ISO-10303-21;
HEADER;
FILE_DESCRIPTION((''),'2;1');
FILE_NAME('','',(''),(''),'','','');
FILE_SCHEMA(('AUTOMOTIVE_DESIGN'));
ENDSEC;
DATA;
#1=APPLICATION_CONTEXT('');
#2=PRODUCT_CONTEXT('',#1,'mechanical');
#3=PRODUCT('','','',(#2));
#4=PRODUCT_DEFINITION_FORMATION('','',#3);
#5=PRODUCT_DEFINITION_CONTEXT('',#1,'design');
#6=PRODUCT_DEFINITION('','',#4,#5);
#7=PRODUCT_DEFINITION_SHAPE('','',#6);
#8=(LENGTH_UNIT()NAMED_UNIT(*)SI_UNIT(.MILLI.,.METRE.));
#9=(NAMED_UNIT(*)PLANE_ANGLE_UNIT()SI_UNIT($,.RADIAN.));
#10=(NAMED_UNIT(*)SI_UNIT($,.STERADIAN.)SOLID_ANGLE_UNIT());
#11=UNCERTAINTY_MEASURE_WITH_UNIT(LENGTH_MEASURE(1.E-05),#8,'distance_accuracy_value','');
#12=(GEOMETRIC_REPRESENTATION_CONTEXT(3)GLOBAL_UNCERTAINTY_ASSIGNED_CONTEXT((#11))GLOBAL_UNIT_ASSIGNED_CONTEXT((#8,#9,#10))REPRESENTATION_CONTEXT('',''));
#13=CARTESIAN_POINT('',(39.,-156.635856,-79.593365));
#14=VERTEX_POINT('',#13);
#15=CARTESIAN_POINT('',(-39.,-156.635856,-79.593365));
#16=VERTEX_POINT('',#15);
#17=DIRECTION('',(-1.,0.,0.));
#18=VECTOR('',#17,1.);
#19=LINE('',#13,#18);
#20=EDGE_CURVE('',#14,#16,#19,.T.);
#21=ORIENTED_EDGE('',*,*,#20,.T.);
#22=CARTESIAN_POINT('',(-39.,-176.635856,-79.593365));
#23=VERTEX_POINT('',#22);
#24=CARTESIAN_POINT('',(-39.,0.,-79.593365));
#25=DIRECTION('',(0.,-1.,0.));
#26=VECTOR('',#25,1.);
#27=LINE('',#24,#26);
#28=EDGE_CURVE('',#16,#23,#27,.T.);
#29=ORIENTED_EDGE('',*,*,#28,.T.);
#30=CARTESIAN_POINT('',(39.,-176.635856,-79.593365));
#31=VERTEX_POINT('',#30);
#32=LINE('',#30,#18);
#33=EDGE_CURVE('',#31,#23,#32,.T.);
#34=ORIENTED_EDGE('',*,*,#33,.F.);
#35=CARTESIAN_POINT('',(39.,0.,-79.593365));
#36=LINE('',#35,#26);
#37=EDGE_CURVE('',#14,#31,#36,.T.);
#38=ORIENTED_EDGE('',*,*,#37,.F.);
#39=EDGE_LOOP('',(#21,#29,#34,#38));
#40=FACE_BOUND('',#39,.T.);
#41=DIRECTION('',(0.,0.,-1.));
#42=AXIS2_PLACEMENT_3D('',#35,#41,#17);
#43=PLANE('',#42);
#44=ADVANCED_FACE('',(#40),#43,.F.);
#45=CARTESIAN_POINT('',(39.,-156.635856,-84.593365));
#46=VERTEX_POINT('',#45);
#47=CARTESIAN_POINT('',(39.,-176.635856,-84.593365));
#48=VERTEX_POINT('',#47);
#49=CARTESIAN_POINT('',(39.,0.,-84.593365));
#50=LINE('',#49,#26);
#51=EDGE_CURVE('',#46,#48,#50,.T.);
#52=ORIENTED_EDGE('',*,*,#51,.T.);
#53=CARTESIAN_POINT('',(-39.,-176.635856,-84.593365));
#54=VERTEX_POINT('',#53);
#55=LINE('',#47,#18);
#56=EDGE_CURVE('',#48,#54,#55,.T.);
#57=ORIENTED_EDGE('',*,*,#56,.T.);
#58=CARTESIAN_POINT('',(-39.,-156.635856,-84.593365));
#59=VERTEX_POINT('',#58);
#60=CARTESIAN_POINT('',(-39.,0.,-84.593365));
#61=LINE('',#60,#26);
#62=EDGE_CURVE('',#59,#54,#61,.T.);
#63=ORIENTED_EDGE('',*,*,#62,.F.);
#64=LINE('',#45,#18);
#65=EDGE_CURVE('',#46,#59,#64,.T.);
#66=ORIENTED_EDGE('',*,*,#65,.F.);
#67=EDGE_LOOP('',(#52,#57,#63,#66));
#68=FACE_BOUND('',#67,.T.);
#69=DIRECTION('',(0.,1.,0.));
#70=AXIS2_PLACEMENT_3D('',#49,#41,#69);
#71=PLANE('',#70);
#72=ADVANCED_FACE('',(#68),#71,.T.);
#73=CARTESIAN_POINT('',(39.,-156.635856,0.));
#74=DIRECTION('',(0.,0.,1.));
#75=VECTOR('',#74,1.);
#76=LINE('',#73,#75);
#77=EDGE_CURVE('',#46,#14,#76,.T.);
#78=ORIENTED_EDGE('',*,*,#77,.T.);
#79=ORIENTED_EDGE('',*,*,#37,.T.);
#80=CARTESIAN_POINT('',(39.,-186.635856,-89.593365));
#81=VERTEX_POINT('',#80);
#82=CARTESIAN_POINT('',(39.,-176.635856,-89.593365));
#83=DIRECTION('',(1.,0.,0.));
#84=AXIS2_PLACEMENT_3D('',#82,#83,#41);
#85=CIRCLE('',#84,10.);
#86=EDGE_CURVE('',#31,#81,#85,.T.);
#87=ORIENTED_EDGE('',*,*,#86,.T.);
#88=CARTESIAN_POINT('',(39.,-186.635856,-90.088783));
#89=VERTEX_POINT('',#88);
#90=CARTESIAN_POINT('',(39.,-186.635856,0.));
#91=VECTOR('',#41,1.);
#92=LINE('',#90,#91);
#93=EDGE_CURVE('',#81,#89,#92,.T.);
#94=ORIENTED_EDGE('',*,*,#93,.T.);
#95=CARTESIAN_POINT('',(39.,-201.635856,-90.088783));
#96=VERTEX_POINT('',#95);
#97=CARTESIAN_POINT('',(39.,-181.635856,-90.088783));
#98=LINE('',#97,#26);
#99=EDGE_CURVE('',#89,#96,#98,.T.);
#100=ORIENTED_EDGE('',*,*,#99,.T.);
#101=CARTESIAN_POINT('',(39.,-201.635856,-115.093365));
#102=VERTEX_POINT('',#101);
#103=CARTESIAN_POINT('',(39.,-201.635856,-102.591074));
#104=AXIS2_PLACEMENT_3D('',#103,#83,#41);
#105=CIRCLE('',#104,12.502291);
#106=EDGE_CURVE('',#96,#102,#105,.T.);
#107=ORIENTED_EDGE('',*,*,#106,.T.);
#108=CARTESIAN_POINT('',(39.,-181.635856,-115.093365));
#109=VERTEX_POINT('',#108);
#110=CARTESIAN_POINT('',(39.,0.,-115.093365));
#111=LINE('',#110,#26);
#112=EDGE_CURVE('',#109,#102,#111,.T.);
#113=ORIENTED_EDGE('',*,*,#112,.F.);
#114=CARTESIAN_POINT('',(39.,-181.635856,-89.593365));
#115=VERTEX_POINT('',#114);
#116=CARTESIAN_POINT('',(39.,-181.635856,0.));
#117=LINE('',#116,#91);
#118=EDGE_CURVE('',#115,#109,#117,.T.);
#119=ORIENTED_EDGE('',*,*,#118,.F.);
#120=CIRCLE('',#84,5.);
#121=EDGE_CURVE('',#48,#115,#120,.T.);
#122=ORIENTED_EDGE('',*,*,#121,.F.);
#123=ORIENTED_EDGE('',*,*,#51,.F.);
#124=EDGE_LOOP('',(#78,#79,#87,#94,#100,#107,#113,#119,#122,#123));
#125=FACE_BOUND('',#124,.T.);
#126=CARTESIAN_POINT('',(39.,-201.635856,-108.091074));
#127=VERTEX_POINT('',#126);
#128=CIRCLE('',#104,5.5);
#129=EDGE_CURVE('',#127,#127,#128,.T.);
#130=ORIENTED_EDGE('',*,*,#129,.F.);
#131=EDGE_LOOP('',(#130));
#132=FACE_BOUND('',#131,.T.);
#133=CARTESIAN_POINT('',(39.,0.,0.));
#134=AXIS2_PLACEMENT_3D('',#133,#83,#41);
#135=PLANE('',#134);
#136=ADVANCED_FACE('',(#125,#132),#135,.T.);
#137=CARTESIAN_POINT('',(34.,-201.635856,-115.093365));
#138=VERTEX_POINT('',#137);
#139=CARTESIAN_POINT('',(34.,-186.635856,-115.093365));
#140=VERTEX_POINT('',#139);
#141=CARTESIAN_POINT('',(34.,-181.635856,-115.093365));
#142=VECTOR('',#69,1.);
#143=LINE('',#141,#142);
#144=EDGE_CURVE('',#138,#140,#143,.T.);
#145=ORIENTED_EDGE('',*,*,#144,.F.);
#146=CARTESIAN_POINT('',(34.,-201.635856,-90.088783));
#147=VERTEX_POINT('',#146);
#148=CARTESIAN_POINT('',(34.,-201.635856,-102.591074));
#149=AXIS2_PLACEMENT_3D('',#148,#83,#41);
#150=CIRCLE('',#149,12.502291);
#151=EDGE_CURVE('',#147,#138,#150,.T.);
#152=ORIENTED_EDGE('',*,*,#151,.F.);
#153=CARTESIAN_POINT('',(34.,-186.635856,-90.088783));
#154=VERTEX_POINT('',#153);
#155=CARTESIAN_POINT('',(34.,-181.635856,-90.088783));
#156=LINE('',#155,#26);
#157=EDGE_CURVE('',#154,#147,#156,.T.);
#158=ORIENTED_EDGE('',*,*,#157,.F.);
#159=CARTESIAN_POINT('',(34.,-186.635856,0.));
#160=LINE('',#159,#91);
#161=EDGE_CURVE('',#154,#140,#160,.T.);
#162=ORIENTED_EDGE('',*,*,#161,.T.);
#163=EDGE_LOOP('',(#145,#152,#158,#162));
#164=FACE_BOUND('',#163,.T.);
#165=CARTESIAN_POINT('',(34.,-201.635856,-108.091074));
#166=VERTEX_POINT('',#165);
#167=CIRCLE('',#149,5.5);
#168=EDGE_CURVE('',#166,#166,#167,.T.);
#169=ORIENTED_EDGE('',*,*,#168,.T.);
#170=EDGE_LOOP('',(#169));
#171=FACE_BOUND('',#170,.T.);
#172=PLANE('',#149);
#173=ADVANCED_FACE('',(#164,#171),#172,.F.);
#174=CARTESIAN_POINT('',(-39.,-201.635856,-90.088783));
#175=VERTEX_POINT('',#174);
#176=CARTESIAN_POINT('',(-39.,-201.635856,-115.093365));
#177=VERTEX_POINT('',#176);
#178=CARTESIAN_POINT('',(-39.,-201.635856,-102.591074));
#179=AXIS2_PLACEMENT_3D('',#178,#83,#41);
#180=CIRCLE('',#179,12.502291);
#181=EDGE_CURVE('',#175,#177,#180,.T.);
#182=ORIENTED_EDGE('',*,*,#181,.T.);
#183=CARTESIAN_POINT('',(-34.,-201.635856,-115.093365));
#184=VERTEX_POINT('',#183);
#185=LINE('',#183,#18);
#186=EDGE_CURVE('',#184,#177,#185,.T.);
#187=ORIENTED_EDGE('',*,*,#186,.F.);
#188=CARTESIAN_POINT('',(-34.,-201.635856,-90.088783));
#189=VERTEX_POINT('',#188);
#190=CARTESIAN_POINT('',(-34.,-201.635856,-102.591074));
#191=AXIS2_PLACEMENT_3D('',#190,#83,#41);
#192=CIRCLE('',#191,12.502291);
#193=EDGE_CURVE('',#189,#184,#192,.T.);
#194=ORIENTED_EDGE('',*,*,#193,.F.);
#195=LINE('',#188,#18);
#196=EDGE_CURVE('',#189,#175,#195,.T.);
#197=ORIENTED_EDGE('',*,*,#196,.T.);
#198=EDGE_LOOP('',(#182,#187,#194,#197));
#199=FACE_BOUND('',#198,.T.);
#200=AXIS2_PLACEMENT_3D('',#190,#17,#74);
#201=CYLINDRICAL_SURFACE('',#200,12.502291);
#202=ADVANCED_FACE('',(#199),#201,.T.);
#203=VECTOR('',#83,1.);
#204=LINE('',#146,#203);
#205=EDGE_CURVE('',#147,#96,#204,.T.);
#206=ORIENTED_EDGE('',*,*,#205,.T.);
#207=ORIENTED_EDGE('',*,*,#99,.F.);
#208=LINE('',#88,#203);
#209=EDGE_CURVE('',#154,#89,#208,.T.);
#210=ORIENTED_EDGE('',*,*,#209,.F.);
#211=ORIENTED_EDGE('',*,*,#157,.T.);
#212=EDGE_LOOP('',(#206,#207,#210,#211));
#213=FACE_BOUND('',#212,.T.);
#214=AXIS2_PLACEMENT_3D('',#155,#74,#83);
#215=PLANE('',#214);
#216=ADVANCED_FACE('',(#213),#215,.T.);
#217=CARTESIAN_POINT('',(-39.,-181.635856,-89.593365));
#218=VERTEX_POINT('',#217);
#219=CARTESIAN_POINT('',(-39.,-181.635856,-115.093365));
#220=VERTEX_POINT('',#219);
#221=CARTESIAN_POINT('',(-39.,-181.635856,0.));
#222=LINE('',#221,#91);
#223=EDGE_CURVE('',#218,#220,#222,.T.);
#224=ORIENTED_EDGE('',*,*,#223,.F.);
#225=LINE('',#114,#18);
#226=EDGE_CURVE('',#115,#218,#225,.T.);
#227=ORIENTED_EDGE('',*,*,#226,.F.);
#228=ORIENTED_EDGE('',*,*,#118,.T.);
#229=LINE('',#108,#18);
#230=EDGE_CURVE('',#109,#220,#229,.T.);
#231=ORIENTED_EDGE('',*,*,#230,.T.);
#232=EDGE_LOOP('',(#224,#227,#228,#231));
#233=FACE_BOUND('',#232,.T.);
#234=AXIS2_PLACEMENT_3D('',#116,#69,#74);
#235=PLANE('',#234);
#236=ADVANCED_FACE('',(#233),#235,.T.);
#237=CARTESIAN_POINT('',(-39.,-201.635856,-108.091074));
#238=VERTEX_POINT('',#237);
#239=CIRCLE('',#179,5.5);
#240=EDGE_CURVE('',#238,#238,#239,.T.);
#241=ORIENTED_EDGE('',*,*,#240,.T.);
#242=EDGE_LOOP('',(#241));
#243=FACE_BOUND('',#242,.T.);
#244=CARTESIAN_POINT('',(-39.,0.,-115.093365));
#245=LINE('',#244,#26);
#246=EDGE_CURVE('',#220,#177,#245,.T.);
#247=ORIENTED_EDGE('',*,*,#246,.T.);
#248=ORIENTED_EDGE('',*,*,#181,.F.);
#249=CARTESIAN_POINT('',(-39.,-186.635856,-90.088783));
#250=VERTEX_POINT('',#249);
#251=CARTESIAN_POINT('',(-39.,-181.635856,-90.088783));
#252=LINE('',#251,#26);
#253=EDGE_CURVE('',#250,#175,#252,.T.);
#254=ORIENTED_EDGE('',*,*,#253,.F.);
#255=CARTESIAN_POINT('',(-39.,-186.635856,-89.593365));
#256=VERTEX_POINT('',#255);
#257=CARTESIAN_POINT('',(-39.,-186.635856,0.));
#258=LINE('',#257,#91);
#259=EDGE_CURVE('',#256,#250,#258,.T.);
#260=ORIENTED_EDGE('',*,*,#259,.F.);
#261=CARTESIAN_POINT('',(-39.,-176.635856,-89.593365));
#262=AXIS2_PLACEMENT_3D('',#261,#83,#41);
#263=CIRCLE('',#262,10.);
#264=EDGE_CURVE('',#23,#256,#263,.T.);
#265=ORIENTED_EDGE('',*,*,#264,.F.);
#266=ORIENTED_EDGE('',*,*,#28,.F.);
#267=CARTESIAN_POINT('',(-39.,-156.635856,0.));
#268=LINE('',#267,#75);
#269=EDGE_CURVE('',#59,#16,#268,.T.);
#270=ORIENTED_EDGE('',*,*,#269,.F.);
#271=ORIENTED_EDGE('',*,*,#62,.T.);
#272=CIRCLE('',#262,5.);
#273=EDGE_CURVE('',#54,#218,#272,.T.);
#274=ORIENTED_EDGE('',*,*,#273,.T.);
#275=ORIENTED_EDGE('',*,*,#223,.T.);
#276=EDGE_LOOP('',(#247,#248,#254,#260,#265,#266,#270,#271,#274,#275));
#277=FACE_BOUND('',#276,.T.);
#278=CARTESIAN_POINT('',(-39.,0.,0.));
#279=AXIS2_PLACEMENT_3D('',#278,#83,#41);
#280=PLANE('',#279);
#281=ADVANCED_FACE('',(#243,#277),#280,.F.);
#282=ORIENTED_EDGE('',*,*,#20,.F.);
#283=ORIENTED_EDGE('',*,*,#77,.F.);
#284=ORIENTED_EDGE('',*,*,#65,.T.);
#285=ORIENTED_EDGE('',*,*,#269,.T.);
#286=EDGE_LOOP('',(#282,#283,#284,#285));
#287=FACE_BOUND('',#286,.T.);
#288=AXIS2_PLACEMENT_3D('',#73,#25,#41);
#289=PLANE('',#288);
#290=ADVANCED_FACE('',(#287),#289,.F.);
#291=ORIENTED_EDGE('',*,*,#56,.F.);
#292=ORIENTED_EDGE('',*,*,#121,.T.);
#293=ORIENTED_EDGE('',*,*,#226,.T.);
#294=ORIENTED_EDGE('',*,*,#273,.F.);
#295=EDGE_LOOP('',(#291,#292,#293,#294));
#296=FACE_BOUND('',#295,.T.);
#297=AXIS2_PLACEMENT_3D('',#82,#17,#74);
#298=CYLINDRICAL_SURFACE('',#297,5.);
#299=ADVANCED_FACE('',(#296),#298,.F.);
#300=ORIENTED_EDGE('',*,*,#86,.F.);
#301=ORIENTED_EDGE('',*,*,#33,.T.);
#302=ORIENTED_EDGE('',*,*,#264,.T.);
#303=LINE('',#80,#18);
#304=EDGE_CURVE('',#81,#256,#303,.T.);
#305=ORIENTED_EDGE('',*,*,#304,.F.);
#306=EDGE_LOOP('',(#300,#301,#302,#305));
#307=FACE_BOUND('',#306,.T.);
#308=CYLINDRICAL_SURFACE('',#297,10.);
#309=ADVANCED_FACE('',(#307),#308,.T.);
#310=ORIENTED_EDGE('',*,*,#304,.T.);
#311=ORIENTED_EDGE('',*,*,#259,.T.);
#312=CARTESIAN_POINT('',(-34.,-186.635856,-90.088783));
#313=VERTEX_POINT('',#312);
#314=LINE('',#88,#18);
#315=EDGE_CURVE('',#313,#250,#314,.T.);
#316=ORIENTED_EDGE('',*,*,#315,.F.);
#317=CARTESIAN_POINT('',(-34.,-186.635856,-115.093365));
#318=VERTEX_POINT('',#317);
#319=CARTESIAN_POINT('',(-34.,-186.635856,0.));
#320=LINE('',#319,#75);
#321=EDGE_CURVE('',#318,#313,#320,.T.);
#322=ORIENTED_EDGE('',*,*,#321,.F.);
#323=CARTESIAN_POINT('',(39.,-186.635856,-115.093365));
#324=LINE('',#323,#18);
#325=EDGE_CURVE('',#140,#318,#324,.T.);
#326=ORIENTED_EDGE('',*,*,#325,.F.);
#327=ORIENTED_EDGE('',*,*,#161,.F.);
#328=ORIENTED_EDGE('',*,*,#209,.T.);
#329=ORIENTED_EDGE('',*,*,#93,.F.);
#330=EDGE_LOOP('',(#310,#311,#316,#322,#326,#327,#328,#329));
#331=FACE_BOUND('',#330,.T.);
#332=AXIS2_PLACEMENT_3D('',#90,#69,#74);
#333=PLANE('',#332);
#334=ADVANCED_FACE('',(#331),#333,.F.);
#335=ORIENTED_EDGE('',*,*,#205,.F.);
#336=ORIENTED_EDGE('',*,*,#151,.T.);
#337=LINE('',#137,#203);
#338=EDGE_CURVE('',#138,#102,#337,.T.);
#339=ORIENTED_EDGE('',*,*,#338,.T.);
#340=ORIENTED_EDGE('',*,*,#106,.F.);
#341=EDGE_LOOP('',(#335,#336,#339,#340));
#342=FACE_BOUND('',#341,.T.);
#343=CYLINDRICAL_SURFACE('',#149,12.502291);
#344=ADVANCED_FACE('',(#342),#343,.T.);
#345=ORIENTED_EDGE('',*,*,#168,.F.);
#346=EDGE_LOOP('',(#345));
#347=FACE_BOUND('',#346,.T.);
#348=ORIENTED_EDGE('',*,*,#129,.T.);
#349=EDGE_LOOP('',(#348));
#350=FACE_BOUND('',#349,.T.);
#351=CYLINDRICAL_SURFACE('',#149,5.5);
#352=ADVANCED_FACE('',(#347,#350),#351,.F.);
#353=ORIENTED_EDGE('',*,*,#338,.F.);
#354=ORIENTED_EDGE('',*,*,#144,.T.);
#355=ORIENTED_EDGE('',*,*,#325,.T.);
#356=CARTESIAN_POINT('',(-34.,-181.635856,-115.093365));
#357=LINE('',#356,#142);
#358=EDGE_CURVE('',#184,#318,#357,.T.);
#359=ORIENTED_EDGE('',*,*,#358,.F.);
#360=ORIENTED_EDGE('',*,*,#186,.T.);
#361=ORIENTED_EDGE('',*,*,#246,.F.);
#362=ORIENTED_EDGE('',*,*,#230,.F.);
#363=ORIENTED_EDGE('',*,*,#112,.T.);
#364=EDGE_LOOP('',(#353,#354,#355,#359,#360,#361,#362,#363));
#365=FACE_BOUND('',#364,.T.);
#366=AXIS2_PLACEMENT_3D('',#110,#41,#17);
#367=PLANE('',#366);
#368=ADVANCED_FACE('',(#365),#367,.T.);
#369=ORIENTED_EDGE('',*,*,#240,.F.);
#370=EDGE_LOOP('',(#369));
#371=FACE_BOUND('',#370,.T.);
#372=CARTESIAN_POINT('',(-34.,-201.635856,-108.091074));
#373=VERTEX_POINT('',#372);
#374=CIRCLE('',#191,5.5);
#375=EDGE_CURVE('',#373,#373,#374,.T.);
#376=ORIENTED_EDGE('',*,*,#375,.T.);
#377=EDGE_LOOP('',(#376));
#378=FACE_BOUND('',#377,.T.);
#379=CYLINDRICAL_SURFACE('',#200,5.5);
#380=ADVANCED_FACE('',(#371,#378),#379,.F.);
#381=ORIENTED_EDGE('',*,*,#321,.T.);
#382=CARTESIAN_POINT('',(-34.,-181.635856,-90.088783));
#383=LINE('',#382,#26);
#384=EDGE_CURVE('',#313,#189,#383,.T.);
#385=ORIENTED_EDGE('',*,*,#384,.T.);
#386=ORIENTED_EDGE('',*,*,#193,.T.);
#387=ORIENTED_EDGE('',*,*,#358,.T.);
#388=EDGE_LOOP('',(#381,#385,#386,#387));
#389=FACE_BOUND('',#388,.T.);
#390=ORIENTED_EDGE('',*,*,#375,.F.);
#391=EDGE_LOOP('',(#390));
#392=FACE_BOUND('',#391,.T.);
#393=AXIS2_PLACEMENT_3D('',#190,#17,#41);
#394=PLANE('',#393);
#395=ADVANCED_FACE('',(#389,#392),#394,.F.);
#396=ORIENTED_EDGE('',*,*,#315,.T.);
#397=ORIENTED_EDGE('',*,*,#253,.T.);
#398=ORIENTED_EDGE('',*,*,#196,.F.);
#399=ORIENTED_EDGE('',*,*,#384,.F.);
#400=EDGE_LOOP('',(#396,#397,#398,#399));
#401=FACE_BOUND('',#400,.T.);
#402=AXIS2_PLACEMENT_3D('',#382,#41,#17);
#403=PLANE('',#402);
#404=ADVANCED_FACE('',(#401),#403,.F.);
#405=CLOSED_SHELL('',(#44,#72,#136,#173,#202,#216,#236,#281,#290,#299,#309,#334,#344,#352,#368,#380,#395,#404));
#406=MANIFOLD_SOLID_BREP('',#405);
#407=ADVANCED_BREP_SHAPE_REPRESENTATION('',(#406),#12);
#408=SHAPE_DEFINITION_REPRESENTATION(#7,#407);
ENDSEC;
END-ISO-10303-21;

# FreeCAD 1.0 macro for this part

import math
import FreeCAD as App
import Part
import Sketcher
Q = App.Units.Quantity

doc = App.newDocument("Part")
params = doc.addObject("Spreadsheet::Sheet", "Params")
for row, (alias, value) in enumerate([
    ("sketch1_radius", "10 mm"),
    ("sketch1_radius2", "5 mm"),
    ("sketch1_width", "20 mm"),
    ("sketch1_height", "25.5 mm"),
    ("pad1_length", "78 mm"),
    ("sketch2_diameter", "11 mm"),
    ("sketch2_width", "20 mm"),
    ("pad2_length", "5 mm"),
], start=1):
    params.set(f"A{row}", alias)
    params.set(f"B{row}", "=" + value)
    params.setAlias(f"B{row}", alias)

body = doc.addObject("PartDesign::Body", "Body")

sketch1 = body.newObject("Sketcher::SketchObject", "Sketch")
sketch1.AttachmentSupport = (doc.getObject("YZ_Plane"), [""])
sketch1.MapMode = "FlatFace"
sketch1.addGeometry([
    Part.LineSegment(App.Vector(-157, -80, 0), App.Vector(-177, -80, 0)),
    Part.ArcOfCircle(Part.Circle(App.Vector(-177, -90, 0), App.Vector(0, 0, 1), 10), math.radians(90), math.radians(180)),
    Part.LineSegment(App.Vector(-187, -90, 0), App.Vector(-187, -115, 0)),
    Part.LineSegment(App.Vector(-187, -115, 0), App.Vector(-182, -115, 0)),
    Part.LineSegment(App.Vector(-182, -115, 0), App.Vector(-182, -90, 0)),
    Part.ArcOfCircle(Part.Circle(App.Vector(-177, -90, 0), App.Vector(0, 0, 1), 5), math.radians(90), math.radians(180)),
    Part.LineSegment(App.Vector(-177, -85, 0), App.Vector(-157, -85, 0)),
    Part.LineSegment(App.Vector(-157, -85, 0), App.Vector(-157, -80, 0)),
], False)
sketch1.addConstraint([
    Sketcher.Constraint("Tangent", 0, 2, 1, 1),
    Sketcher.Constraint("Tangent", 1, 2, 2, 1),
    Sketcher.Constraint("Coincident", 2, 2, 3, 1),
    Sketcher.Constraint("Coincident", 3, 2, 4, 1),
    Sketcher.Constraint("Tangent", 4, 2, 5, 2),
    Sketcher.Constraint("Tangent", 5, 1, 6, 1),
    Sketcher.Constraint("Coincident", 6, 2, 7, 1),
    Sketcher.Constraint("Coincident", 7, 2, 0, 1),
    Sketcher.Constraint("Horizontal", 0),
    Sketcher.Constraint("Vertical", 2),
    Sketcher.Constraint("Horizontal", 3),
    Sketcher.Constraint("Vertical", 4),
    Sketcher.Constraint("Horizontal", 6),
    Sketcher.Constraint("Vertical", 7),
    Sketcher.Constraint("Coincident", 5, 3, 1, 3),
    Sketcher.Constraint("Radius", 1, Q("10 mm")),
    Sketcher.Constraint("Radius", 5, Q("5 mm")),
    Sketcher.Constraint("DistanceX", 0, 2, 0, 1, Q("20 mm")),
    Sketcher.Constraint("DistanceY", 2, 2, 2, 1, Q("25.5 mm")),
    Sketcher.Constraint("DistanceX", 1, 3, -1, 1, Q("176.635856 mm")),
    Sketcher.Constraint("DistanceY", 1, 3, -1, 1, Q("89.593365 mm")),
])
sketch1.setExpression("Constraints[15]", "Params.sketch1_radius")
sketch1.setExpression("Constraints[16]", "Params.sketch1_radius2")
sketch1.setExpression("Constraints[17]", "Params.sketch1_width")
sketch1.setExpression("Constraints[18]", "Params.sketch1_height")
pad1 = body.newObject("PartDesign::Pad", "Pad")
pad1.Profile = sketch1
pad1.setExpression("Length", "Params.pad1_length")
pad1.Midplane = True

sketch2 = body.newObject("Sketcher::SketchObject", "Sketch001")
sketch2.AttachmentSupport = (doc.getObject("YZ_Plane"), [""])
sketch2.MapMode = "FlatFace"
sketch2.AttachmentOffset = App.Placement(App.Vector(0, 0, 39), App.Rotation())
sketch2.addGeometry([
    Part.LineSegment(App.Vector(-202, -115, 0), App.Vector(-182, -115, 0)),
    Part.LineSegment(App.Vector(-182, -115, 0), App.Vector(-182, -90, 0)),
    Part.LineSegment(App.Vector(-182, -90, 0), App.Vector(-202, -90, 0)),
    Part.ArcOfCircle(Part.Circle(App.Vector(-202, -103, 0), App.Vector(0, 0, 1), 13), math.radians(90), math.radians(270)),
    Part.Circle(App.Vector(-202, -103, 0), App.Vector(0, 0, 1), 6),
], False)
sketch2.addConstraint([
    Sketcher.Constraint("Coincident", 0, 2, 1, 1),
    Sketcher.Constraint("Coincident", 1, 2, 2, 1),
    Sketcher.Constraint("Tangent", 2, 2, 3, 1),
    Sketcher.Constraint("Tangent", 3, 2, 0, 1),
    Sketcher.Constraint("Horizontal", 0),
    Sketcher.Constraint("Vertical", 1),
    Sketcher.Constraint("Horizontal", 2),
    Sketcher.Constraint("Coincident", 4, 3, 3, 3),
    Sketcher.Constraint("Diameter", 4, Q("11 mm")),
    Sketcher.Constraint("DistanceX", 0, 1, 0, 2, Q("20 mm")),
    Sketcher.Constraint("Radius", 3, Q("12.502291 mm")),
    Sketcher.Constraint("DistanceX", 3, 3, -1, 1, Q("201.635856 mm")),
    Sketcher.Constraint("DistanceY", 3, 3, -1, 1, Q("102.591074 mm")),
])
sketch2.setExpression("Constraints[8]", "Params.sketch2_diameter")
sketch2.setExpression("Constraints[9]", "Params.sketch2_width")
pad2 = body.newObject("PartDesign::Pad", "Pad001")
pad2.Profile = sketch2
pad2.setExpression("Length", "Params.pad2_length")
pad2.Reversed = True
doc.recompute()

mirrored = body.newObject("PartDesign::Mirrored", "Mirrored")
mirrored.Originals = [pad2]
mirrored.MirrorPlane = (doc.getObject("YZ_Plane"), [""])
body.Tip = mirrored

doc.recompute()
